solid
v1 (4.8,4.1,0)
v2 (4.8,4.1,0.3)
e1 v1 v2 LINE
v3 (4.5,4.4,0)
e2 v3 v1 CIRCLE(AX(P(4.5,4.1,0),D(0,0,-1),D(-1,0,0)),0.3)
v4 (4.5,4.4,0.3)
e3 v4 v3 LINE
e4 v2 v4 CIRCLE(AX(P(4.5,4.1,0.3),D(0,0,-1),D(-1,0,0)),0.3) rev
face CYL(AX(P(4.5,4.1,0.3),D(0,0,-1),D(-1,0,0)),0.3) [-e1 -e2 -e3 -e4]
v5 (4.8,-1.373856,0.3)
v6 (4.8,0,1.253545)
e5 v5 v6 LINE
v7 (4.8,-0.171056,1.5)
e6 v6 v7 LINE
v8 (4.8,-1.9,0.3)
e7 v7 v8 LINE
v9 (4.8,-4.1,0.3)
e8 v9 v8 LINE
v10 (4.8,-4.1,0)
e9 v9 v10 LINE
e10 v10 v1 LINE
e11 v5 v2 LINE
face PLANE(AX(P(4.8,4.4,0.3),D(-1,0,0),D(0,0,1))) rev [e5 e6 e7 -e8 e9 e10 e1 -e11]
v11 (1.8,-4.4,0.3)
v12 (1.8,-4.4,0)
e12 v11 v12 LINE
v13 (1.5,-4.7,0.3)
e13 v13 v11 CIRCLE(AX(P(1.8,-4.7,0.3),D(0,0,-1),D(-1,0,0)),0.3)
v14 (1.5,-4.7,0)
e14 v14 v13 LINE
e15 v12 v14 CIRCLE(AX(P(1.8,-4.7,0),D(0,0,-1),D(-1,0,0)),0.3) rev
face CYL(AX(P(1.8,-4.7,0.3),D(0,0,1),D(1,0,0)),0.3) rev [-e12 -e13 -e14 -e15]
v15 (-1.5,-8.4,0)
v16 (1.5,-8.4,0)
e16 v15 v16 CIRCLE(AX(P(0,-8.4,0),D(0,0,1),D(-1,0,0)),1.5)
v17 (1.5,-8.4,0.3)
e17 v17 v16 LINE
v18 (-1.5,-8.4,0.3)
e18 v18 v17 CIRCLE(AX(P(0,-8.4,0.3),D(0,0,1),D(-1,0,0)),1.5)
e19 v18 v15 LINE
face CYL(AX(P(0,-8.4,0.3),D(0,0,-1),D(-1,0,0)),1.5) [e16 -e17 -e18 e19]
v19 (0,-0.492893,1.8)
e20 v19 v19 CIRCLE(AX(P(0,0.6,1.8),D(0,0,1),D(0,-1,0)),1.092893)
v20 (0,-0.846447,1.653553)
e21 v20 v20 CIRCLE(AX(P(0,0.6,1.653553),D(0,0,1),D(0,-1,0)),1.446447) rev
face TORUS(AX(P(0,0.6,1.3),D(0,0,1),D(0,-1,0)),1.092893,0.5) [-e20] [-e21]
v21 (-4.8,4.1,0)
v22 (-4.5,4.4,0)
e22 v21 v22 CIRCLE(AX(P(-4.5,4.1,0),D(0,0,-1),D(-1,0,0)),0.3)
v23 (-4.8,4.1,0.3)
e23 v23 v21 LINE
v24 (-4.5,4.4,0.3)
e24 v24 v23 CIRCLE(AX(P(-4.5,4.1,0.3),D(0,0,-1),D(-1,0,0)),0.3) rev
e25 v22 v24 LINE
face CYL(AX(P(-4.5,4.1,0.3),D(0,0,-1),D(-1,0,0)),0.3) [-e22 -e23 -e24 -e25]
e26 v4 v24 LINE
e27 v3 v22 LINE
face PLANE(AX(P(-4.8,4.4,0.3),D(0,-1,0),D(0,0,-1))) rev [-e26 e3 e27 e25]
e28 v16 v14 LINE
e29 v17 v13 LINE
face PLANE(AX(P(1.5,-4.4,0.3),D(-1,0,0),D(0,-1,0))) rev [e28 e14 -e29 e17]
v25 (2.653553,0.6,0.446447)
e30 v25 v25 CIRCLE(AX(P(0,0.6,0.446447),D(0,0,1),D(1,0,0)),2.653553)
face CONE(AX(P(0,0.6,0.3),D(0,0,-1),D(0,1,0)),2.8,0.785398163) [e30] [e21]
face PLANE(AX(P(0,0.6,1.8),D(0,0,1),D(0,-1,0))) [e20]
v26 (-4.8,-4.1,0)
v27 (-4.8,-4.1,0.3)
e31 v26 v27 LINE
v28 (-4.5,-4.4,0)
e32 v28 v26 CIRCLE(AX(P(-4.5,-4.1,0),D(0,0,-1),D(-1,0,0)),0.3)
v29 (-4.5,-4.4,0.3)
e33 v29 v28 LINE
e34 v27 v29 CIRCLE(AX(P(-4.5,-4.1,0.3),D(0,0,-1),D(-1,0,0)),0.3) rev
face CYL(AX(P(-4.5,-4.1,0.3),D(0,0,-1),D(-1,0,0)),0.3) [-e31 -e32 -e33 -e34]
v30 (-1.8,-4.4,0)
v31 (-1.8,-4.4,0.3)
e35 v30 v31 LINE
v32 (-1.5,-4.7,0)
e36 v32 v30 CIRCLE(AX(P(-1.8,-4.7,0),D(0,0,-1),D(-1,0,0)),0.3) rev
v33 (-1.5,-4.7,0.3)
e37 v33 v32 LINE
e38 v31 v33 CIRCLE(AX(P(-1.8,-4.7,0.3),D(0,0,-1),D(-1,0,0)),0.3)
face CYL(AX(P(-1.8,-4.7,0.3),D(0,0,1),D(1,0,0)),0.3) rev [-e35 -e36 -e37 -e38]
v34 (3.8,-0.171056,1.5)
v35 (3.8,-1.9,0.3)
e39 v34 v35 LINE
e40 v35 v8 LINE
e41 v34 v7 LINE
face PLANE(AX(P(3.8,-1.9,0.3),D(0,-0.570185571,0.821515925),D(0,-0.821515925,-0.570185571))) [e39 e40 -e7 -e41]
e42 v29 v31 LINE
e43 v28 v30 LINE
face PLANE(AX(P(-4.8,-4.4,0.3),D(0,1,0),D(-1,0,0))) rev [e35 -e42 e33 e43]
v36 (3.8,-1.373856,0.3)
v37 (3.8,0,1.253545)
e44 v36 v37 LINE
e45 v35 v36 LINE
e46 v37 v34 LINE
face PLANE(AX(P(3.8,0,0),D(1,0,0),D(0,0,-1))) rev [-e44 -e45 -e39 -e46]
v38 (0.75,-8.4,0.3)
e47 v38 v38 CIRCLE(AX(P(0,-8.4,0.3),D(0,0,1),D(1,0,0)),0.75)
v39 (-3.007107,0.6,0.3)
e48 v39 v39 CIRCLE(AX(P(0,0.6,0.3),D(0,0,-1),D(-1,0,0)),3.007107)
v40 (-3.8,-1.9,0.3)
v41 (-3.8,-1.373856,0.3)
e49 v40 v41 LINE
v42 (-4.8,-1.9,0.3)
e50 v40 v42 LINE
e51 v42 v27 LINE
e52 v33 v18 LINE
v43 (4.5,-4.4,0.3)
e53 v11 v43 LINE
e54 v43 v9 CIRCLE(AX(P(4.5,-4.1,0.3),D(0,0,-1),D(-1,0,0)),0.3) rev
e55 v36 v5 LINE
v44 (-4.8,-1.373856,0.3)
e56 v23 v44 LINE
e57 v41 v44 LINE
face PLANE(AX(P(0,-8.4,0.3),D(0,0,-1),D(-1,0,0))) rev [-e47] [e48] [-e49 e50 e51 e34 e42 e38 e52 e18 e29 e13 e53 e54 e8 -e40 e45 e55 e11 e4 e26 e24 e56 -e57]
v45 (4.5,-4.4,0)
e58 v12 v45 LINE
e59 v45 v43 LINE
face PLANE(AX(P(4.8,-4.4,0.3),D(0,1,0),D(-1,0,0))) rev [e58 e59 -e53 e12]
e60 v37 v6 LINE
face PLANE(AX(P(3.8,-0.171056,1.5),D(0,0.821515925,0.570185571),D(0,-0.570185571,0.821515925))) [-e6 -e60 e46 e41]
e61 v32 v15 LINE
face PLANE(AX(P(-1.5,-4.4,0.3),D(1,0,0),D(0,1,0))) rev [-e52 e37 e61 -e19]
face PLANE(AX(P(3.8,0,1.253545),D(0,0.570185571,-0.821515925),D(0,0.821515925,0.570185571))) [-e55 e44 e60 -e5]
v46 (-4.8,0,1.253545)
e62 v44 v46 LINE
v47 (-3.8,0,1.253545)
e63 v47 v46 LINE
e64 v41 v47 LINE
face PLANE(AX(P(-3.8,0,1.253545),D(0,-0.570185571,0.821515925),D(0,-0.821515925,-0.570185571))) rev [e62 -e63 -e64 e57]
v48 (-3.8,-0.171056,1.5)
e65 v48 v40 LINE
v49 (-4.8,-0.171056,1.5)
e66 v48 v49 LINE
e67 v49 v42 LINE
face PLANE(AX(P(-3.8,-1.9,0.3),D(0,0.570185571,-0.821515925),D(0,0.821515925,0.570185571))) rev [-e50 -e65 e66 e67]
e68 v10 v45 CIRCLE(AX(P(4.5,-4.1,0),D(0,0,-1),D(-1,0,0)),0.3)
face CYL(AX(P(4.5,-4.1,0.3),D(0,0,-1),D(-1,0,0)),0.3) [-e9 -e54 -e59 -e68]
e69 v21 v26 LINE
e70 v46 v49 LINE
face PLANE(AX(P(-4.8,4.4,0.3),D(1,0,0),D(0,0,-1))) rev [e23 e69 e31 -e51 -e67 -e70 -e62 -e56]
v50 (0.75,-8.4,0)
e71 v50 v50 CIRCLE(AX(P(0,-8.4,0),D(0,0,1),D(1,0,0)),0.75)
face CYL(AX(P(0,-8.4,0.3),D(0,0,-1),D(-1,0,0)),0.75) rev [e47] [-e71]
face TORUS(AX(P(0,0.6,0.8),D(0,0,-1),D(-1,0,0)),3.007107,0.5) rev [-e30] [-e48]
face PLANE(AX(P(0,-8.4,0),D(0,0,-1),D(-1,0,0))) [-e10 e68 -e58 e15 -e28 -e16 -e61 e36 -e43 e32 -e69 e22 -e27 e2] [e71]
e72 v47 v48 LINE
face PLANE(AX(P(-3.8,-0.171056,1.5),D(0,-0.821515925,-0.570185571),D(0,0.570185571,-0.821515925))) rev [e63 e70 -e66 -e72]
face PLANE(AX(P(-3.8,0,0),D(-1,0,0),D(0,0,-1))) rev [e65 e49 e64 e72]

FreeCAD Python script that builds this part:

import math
import FreeCAD as App
import Part
import Sketcher
Q = App.Units.Quantity


def edges_at(feature, points):
    """Names of the edges that pass closest to the given points."""
    edges = feature.Shape.Edges
    near = lambda p: min(range(len(edges)), key=lambda i: edges[i].distToShape(Part.Vertex(*p))[0])
    return sorted({f"Edge{near(p) + 1}" for p in points})


def add_polygon(sketch, points):
    """Adds a closed chain of lines whose ends are joined by coincident constraints."""
    first, n = sketch.GeometryCount, len(points)
    for a, b in zip(points, points[1:] + points[:1]):
        sketch.addGeometry(Part.LineSegment(App.Vector(*a, 0), App.Vector(*b, 0)), False)
    for i in range(n):
        sketch.addConstraint(Sketcher.Constraint("Coincident", first + i, 2, first + (i + 1) % n, 1))

doc = App.newDocument("Part")
params = doc.addObject("Spreadsheet::Sheet", "Params")
for row, (alias, value) in enumerate([
    ("sketch1_diameter", "1.5 mm"),
    ("sketch1_radius", "1.5 mm"),
    ("sketch1_height", "4 mm"),
    ("sketch1_width", "9.6 mm"),
    ("sketch1_height2", "8.8 mm"),
    ("pad1_length", "0.3 mm"),
    ("fillet_radius", "0.3 mm"),
    ("sketch2_length", "0.3 mm"),
    ("pad2_length", "1 mm"),
    ("sketch3_width", "1.3 mm"),
    ("sketch3_width2", "2.8 mm"),
    ("revolution_angle", "360 deg"),
    ("fillet2_radius", "0.5 mm"),
], start=1):
    params.set(f"A{row}", alias)
    params.set(f"B{row}", "=" + value)
    params.setAlias(f"B{row}", alias)

body = doc.addObject("PartDesign::Body", "Body")

sketch1 = body.newObject("Sketcher::SketchObject", "Sketch")
sketch1.AttachmentSupport = (doc.getObject("XY_Plane"), [""])
sketch1.MapMode = "FlatFace"
sketch1.addGeometry([
    Part.LineSegment(App.Vector(4.8, 4.4, 0), App.Vector(-4.8, 4.4, 0)),
    Part.LineSegment(App.Vector(-4.8, 4.4, 0), App.Vector(-4.8, -4.4, 0)),
    Part.LineSegment(App.Vector(-4.8, -4.4, 0), App.Vector(-1.5, -4.4, 0)),
    Part.LineSegment(App.Vector(-1.5, -4.4, 0), App.Vector(-1.5, -8.4, 0)),
    Part.ArcOfCircle(Part.Circle(App.Vector(0, -8.4, 0), App.Vector(0, 0, 1), 1.5), math.radians(180), math.radians(360)),
    Part.LineSegment(App.Vector(1.5, -8.4, 0), App.Vector(1.5, -4.4, 0)),
    Part.LineSegment(App.Vector(1.5, -4.4, 0), App.Vector(4.8, -4.4, 0)),
    Part.LineSegment(App.Vector(4.8, -4.4, 0), App.Vector(4.8, 4.4, 0)),
    Part.Circle(App.Vector(0, -8.4, 0), App.Vector(0, 0, 1), 0.8),
], False)
sketch1.addConstraint([
    Sketcher.Constraint("Coincident", 0, 2, 1, 1),
    Sketcher.Constraint("Coincident", 1, 2, 2, 1),
    Sketcher.Constraint("Coincident", 2, 2, 3, 1),
    Sketcher.Constraint("Tangent", 3, 2, 4, 1),
    Sketcher.Constraint("Tangent", 4, 2, 5, 1),
    Sketcher.Constraint("Coincident", 5, 2, 6, 1),
    Sketcher.Constraint("Coincident", 6, 2, 7, 1),
    Sketcher.Constraint("Coincident", 7, 2, 0, 1),
    Sketcher.Constraint("Horizontal", 0),
    Sketcher.Constraint("Vertical", 1),
    Sketcher.Constraint("Horizontal", 2),
    Sketcher.Constraint("Vertical", 3),
    Sketcher.Constraint("Vertical", 5),
    Sketcher.Constraint("Horizontal", 6),
    Sketcher.Constraint("Vertical", 7),
    Sketcher.Constraint("Coincident", 8, 3, 4, 3),
    Sketcher.Constraint("Symmetric", 0, 2, 6, 2, -1, 1),
    Sketcher.Constraint("Symmetric", 2, 2, 5, 2, -2),
    Sketcher.Constraint("Diameter", 8, 1.5),
    Sketcher.Constraint("Radius", 4, 1.5),
    Sketcher.Constraint("DistanceY", 3, 2, 3, 1, 4.0),
    Sketcher.Constraint("DistanceX", 0, 2, 0, 1, 9.6),
    Sketcher.Constraint("DistanceY", 1, 2, 1, 1, 8.8),
])
sketch1.setExpression("Constraints[18]", "Params.sketch1_diameter")
sketch1.setExpression("Constraints[19]", "Params.sketch1_radius")
sketch1.setExpression("Constraints[20]", "Params.sketch1_height")
sketch1.setExpression("Constraints[21]", "Params.sketch1_width")
sketch1.setExpression("Constraints[22]", "Params.sketch1_height2")
pad1 = body.newObject("PartDesign::Pad", "Pad")
pad1.Profile = sketch1
pad1.setExpression("Length", "Params.pad1_length")
doc.recompute()

fillet = body.newObject("PartDesign::Fillet", "Fillet")
fillet.Base = (pad1, edges_at(pad1, [
    (-4.8, -4.4, 0.15),
    (-4.8, 4.4, 0.15),
    (4.8, 4.4, 0.15),
    (4.8, -4.4, 0.15),
    (1.5, -4.4, 0.15),
    (-1.5, -4.4, 0.15),
]))
fillet.setExpression("Radius", "Params.fillet_radius")

sketch2 = body.newObject("Sketcher::SketchObject", "Sketch001")
sketch2.AttachmentSupport = (doc.getObject("YZ_Plane"), [""])
sketch2.MapMode = "FlatFace"
sketch2.AttachmentOffset = App.Placement(App.Vector(0, 0, 4.8), App.Rotation())
add_polygon(sketch2, [(-0.17, 1.5), (-1.9, 0.3), (-1.37, 0.3), (0, 1.25)])
sketch2.addConstraint([
    Sketcher.Constraint("Horizontal", 1),
    Sketcher.Constraint("PointOnObject", 2, 2, -2),
    Sketcher.Constraint("Parallel", 0, 2),
    Sketcher.Constraint("Perpendicular", 2, 3),
    Sketcher.Constraint("Distance", 3, 0.3),
    Sketcher.Constraint("DistanceX", 0, 2, -1, 1, 1.9),
    Sketcher.Constraint("DistanceY", -1, 1, 0, 2, 0.3),
    Sketcher.Constraint("DistanceY", -1, 1, 3, 2, 1.5),
])
sketch2.setExpression("Constraints[8]", "Params.sketch2_length")
pad2 = body.newObject("PartDesign::Pad", "Pad001")
pad2.Profile = sketch2
pad2.setExpression("Length", "Params.pad2_length")
pad2.Reversed = True
doc.recompute()

mirrored = body.newObject("PartDesign::Mirrored", "Mirrored")
mirrored.Originals = [pad2]
mirrored.MirrorPlane = (doc.getObject("YZ_Plane"), [""])
body.Tip = mirrored

sketch3 = body.newObject("Sketcher::SketchObject", "Sketch002")
sketch3.AttachmentSupport = (doc.getObject("YZ_Plane"), [""])
sketch3.MapMode = "FlatFace"
add_polygon(sketch3, [(1.9, 1.8), (0.6, 1.8), (0.6, 0.3), (3.4, 0.3)])
sketch3.addGeometry(Part.LineSegment(App.Vector(0.6, 0.3, 0), App.Vector(0.6, 1.8, 0)), True)
sketch3.addConstraint([
    Sketcher.Constraint("Horizontal", 0),
    Sketcher.Constraint("Vertical", 1),
    Sketcher.Constraint("Horizontal", 2),
    Sketcher.Constraint("Vertical", 4),
    Sketcher.Constraint("Coincident", 4, 1, 1, 2),
    Sketcher.Constraint("Horizontal", 3, 2, 4, 2),
    Sketcher.Constraint("Angle", 3, Q("135 deg")),
    Sketcher.Constraint("DistanceX", 0, 2, 0, 1, 1.3),
    Sketcher.Constraint("DistanceX", 2, 1, 2, 2, 2.8),
    Sketcher.Constraint("DistanceX", -1, 1, 0, 2, 0.6),
    Sketcher.Constraint("DistanceY", -1, 1, 0, 2, 1.8),
])
sketch3.setExpression("Constraints[11]", "Params.sketch3_width")
sketch3.setExpression("Constraints[12]", "Params.sketch3_width2")
revolution = body.newObject("PartDesign::Revolution", "Revolution")
revolution.Profile = sketch3
revolution.ReferenceAxis = (sketch3, ["Axis0"])
revolution.setExpression("Angle", "Params.revolution_angle")
doc.recompute()

fillet2 = body.newObject("PartDesign::Fillet", "Fillet001")
fillet2.Base = (revolution, edges_at(revolution, [(0, -0.7, 1.8), (0, -2.2, 0.3)]))
fillet2.setExpression("Radius", "Params.fillet2_radius")

doc.recompute()
